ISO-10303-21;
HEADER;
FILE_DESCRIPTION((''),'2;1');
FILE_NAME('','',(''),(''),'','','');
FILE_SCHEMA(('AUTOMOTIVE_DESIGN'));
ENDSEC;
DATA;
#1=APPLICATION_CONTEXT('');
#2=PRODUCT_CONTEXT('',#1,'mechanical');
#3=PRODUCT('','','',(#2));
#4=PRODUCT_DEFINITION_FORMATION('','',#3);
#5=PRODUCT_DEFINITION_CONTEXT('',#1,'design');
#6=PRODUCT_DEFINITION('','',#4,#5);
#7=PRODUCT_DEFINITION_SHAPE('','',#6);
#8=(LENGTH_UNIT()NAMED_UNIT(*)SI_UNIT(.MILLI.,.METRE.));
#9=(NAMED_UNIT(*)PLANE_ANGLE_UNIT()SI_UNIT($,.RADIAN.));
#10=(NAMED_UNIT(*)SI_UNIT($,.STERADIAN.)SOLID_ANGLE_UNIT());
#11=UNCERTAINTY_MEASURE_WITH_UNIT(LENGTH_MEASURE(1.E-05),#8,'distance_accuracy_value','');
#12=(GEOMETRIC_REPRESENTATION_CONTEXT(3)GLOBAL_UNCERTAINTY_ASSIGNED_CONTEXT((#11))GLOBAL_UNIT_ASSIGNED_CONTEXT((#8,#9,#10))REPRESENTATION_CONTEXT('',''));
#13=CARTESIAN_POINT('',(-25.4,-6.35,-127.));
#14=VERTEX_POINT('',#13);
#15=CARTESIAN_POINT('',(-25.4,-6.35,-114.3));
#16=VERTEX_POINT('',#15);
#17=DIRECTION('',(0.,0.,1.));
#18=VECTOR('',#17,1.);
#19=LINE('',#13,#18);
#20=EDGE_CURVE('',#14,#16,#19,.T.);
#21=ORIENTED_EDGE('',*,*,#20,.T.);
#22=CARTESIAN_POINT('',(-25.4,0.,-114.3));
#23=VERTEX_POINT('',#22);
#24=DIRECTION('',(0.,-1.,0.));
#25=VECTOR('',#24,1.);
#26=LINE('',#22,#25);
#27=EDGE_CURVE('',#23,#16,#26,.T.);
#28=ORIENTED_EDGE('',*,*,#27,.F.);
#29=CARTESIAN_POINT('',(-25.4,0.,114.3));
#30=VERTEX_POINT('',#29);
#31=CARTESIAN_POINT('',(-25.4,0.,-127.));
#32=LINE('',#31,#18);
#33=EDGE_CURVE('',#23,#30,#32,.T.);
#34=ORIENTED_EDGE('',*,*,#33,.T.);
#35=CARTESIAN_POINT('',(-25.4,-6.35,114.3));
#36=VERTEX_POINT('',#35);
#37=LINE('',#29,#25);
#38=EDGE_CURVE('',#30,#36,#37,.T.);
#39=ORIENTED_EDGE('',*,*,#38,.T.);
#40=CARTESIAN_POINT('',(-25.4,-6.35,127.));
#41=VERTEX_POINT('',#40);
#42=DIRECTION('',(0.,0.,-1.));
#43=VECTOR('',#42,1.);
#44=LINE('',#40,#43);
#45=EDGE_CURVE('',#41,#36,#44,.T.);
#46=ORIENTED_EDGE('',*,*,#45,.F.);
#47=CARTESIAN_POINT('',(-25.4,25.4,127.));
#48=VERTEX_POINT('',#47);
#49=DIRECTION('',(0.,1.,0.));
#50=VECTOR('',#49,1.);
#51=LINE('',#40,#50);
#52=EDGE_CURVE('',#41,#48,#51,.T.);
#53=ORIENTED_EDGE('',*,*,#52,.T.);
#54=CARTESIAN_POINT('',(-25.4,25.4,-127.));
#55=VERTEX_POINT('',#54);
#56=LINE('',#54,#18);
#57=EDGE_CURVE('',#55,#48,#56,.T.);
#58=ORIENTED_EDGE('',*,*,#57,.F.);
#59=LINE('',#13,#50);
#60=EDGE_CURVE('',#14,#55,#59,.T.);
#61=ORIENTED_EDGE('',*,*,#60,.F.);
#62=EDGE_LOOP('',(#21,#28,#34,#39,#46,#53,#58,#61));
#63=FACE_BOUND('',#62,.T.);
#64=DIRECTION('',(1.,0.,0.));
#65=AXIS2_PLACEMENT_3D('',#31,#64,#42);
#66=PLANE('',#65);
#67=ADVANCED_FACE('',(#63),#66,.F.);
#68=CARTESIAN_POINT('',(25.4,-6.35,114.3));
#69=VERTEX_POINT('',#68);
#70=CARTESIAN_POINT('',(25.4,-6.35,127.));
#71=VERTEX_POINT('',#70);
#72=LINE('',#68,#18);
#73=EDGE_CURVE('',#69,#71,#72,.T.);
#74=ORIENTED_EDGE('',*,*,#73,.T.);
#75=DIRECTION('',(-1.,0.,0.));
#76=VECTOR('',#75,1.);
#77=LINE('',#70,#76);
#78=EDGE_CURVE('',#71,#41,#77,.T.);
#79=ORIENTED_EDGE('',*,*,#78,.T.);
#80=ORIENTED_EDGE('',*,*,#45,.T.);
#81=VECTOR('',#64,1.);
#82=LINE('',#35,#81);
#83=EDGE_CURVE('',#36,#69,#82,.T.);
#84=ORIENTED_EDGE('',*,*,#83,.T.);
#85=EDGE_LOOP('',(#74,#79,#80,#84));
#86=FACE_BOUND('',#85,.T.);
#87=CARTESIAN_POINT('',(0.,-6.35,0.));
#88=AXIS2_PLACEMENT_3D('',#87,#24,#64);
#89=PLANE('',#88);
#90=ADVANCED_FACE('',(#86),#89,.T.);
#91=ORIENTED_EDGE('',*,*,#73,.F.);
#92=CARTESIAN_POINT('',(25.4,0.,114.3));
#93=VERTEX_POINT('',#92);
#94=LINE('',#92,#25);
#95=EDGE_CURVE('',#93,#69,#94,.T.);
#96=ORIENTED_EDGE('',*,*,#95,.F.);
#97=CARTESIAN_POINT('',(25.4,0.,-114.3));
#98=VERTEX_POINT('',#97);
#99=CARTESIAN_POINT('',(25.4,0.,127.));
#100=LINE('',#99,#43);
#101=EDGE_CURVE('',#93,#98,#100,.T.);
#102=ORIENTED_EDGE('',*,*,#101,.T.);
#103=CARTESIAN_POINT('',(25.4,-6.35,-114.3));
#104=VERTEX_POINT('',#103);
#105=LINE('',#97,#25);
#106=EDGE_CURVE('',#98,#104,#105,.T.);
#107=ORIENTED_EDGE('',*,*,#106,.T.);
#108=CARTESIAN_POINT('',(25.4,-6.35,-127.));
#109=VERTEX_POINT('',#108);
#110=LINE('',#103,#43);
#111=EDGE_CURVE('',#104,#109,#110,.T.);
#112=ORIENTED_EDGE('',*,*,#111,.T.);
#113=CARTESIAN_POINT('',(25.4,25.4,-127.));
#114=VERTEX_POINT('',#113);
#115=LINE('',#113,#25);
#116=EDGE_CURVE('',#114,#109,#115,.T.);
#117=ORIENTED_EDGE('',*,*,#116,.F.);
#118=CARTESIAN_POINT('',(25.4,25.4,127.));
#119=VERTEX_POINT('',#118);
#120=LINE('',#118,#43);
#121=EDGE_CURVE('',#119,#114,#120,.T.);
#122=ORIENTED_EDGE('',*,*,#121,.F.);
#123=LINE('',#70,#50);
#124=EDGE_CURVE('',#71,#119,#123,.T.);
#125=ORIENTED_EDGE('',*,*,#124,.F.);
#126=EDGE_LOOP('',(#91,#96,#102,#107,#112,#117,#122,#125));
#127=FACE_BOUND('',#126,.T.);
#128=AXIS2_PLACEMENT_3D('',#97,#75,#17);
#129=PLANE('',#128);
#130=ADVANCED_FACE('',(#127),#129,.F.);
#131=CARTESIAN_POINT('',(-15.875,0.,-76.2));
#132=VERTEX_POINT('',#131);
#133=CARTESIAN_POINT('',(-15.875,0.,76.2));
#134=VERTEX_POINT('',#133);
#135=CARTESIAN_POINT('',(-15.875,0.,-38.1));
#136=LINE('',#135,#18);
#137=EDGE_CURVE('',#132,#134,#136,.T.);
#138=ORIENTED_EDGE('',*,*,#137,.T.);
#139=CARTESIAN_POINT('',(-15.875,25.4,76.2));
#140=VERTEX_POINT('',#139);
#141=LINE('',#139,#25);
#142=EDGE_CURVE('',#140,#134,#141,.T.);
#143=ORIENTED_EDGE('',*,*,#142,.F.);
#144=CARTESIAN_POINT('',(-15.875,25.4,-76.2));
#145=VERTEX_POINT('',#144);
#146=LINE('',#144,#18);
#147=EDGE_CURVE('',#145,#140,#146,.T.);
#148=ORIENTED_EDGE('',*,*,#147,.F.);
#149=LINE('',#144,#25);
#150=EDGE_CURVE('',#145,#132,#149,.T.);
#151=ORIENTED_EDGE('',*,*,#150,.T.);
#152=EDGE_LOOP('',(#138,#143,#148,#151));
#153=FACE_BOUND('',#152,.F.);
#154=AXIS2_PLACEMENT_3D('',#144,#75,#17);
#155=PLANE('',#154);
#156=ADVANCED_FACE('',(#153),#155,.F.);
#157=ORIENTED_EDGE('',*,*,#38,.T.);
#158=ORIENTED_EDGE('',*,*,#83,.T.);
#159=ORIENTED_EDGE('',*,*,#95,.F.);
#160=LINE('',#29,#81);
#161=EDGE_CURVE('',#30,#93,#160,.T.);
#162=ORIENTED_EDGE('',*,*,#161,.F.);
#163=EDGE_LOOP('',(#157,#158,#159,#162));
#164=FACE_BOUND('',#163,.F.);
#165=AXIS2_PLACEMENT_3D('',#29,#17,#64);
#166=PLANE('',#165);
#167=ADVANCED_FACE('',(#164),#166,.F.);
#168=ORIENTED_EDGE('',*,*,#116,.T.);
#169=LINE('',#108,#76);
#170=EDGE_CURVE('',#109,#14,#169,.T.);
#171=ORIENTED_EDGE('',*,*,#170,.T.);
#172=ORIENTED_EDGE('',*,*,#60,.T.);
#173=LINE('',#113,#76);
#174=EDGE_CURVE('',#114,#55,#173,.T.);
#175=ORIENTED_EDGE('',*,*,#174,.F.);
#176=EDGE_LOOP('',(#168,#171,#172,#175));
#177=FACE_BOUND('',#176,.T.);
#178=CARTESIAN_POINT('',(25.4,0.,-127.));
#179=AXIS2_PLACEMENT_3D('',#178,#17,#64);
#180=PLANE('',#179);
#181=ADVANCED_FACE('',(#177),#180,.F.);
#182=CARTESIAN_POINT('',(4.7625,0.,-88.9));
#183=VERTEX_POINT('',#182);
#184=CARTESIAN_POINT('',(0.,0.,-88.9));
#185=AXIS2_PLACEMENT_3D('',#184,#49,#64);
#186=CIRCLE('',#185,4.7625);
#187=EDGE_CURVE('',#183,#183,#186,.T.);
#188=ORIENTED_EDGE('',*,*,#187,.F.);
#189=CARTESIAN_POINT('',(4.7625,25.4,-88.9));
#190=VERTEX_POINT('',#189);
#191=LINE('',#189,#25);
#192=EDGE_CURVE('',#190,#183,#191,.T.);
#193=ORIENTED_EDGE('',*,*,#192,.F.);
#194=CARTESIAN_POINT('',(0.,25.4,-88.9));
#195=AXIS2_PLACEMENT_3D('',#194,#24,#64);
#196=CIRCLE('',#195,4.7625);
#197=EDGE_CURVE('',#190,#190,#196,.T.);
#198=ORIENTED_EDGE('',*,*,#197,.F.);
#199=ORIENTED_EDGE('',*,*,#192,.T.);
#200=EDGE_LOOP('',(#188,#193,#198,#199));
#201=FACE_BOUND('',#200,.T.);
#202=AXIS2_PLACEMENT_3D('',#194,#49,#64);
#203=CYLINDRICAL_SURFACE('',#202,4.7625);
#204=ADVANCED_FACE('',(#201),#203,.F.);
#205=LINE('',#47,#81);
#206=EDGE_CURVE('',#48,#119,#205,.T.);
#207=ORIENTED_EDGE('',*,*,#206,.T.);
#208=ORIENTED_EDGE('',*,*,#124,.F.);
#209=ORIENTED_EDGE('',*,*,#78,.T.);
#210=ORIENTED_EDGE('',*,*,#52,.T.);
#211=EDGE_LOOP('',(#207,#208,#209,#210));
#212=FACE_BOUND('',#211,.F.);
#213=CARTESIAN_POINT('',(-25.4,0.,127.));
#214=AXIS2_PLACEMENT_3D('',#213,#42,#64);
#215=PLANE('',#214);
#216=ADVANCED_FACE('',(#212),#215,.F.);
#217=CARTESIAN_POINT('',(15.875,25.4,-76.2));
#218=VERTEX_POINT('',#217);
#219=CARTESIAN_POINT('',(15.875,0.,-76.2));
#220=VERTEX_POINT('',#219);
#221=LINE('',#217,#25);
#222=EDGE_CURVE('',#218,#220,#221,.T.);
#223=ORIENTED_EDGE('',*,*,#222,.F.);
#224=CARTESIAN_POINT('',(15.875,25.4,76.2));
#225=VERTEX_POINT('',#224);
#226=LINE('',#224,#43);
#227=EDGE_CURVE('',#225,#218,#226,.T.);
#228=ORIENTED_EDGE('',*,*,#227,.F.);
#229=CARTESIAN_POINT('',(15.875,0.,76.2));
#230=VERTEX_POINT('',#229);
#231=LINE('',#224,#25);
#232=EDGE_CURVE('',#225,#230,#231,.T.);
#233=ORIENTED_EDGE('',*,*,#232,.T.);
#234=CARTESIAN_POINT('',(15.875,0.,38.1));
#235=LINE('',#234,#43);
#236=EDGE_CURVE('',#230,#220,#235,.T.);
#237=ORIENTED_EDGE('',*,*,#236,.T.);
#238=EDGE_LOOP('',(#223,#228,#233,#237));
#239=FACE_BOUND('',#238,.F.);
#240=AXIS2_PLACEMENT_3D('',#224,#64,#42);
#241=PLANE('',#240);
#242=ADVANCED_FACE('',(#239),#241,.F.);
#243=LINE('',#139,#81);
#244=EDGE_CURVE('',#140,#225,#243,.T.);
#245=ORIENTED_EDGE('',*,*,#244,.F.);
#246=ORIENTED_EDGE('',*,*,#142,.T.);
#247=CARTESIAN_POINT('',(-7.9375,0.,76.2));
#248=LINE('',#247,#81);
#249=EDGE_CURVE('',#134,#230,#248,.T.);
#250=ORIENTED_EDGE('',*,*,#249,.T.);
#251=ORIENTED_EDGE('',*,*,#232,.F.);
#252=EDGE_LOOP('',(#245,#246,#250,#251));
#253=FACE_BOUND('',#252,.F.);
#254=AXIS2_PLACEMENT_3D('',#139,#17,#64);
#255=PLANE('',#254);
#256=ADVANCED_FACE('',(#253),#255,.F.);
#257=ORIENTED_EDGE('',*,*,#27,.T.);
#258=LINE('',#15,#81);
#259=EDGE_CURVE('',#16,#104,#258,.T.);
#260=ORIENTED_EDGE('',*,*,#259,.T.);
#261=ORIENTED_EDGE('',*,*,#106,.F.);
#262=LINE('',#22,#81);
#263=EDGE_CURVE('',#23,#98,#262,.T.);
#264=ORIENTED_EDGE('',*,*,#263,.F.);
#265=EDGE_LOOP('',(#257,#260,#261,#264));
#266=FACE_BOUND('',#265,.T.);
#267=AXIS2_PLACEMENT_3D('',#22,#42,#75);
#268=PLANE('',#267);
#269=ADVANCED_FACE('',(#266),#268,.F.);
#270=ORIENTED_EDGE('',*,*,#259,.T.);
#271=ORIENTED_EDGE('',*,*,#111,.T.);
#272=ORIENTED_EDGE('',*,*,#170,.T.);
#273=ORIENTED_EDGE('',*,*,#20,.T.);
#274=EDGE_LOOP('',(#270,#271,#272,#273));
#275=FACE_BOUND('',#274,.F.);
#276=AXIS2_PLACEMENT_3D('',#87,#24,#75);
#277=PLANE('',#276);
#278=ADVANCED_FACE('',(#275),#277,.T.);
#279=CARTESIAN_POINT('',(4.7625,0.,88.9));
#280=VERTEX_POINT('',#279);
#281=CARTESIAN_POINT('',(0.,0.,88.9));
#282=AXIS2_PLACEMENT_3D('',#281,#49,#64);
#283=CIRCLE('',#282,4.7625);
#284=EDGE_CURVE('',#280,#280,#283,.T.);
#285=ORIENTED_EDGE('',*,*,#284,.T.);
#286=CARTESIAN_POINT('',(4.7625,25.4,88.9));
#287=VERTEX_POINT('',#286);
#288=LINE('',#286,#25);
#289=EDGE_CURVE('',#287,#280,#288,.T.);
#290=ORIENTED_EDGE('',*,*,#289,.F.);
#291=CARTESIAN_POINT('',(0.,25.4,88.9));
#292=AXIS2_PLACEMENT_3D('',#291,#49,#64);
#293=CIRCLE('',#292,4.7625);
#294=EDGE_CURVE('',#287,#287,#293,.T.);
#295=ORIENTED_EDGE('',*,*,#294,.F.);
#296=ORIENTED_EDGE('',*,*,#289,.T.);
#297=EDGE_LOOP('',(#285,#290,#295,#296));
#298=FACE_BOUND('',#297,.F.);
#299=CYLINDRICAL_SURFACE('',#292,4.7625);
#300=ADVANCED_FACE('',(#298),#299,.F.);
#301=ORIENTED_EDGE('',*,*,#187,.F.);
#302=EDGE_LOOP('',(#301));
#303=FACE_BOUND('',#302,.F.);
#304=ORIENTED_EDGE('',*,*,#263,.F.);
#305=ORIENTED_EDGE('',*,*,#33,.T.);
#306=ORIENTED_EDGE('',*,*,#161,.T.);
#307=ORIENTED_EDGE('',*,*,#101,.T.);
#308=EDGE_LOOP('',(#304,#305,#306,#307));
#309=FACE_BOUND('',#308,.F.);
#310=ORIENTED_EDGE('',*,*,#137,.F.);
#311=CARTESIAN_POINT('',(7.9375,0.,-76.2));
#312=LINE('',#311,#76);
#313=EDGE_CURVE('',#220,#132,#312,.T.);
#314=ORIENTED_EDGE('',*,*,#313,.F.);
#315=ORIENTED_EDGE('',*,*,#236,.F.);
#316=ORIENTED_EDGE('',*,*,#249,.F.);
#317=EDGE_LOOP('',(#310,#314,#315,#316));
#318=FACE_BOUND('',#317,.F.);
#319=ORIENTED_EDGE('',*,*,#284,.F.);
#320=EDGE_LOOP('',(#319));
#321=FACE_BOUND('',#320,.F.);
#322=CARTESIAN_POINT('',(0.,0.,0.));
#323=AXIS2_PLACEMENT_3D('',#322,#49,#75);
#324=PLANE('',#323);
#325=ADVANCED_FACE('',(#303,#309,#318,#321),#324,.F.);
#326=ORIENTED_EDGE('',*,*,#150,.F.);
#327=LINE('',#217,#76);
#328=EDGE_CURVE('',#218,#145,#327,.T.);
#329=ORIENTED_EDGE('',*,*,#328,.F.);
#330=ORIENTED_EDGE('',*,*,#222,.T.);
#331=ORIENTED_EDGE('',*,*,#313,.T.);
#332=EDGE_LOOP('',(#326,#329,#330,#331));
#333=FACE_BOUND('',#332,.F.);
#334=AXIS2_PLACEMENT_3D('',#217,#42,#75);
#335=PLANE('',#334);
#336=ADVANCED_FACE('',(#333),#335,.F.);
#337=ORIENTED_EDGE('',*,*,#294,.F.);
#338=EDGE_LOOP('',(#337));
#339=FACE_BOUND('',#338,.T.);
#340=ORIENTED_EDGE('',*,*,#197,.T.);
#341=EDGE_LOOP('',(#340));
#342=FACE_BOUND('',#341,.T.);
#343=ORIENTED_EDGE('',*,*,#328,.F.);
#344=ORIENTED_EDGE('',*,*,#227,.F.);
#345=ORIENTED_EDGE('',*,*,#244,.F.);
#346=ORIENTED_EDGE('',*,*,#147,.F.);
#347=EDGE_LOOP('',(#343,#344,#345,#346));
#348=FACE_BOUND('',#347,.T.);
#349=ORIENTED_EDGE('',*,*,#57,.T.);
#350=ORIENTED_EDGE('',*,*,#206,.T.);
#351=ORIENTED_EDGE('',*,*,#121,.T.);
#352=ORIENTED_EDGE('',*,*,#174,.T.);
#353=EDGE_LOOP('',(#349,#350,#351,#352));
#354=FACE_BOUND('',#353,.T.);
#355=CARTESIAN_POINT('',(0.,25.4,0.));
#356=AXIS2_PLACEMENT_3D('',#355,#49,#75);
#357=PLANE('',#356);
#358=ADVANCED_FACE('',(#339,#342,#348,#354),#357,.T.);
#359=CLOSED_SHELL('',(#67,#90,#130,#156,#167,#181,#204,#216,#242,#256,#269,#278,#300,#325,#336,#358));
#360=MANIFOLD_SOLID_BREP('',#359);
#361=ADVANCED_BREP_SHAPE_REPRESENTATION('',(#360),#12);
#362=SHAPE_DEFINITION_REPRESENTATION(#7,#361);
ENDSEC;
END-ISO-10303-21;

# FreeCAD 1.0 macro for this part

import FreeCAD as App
import Part
import Sketcher

V = App.Vector
Q = App.Units.Quantity


def add_polygon(sketch, points):
    """Adds a closed chain of lines whose ends are joined by coincident constraints."""
    first, n = sketch.GeometryCount, len(points)
    for a, b in zip(points, points[1:] + points[:1]):
        sketch.addGeometry(Part.LineSegment(App.Vector(*a, 0), App.Vector(*b, 0)), False)
    for i in range(n):
        sketch.addConstraint(Sketcher.Constraint("Coincident", first + i, 2, first + (i + 1) % n, 1))

doc = App.newDocument("Part")
body = doc.addObject("PartDesign::Body", "Body")

# Sketch on XZ plane
sketch1 = body.newObject("Sketcher::SketchObject", "Sketch")
sketch1.AttachmentSupport = (doc.getObject("XZ_Plane"), [""])
sketch1.MapMode = "FlatFace"
add_polygon(sketch1, [(-25.4, -127), (-25.4, 127), (25.4, 127), (25.4, -127)])  # lines 0-3
sketch1.addConstraint([
    Sketcher.Constraint("Vertical", 0),
    Sketcher.Constraint("Horizontal", 1),
    Sketcher.Constraint("Vertical", 2),
    Sketcher.Constraint("Horizontal", 3),
    Sketcher.Constraint("Symmetric", 0, 2, 2, 2, -1, 1),
    Sketcher.Constraint("DistanceX", 1, 1, 1, 2, Q("2 in")),
    Sketcher.Constraint("DistanceY", 0, 1, 0, 2, Q("10 in")),
])
pad1 = body.newObject("PartDesign::Pad", "Pad")
pad1.Profile = sketch1
pad1.Length = Q("1 in")
pad1.Reversed = True

# Sketch on XZ plane
sketch2 = body.newObject("Sketcher::SketchObject", "Sketch001")
sketch2.AttachmentSupport = (doc.getObject("XZ_Plane"), [""])
sketch2.MapMode = "FlatFace"
add_polygon(sketch2, [(25.4, 127), (-25.4, 127), (-25.4, 114.3), (25.4, 114.3)])  # lines 0-3
sketch2.addConstraint([
    Sketcher.Constraint("Horizontal", 0),
    Sketcher.Constraint("Vertical", 1),
    Sketcher.Constraint("Horizontal", 2),
    Sketcher.Constraint("Vertical", 3),
    Sketcher.Constraint("DistanceY", 1, 2, 1, 1, Q("0.5 in")),
    Sketcher.Constraint("DistanceX", 0, 2, -1, 1, Q("1 in")),
    Sketcher.Constraint("DistanceX", -1, 1, 2, 2, Q("1 in")),
    Sketcher.Constraint("DistanceY", -1, 1, 0, 2, Q("5 in")),
])
pad2 = body.newObject("PartDesign::Pad", "Pad001")
pad2.Profile = sketch2
pad2.Length = Q("0.25 in")
doc.recompute()

mirrored = body.newObject("PartDesign::Mirrored", "Mirrored")
mirrored.Originals = [pad2]
mirrored.MirrorPlane = (doc.getObject("XY_Plane"), [""])
body.Tip = mirrored

# Sketch on XZ plane
sketch3 = body.newObject("Sketcher::SketchObject", "Sketch002")
sketch3.AttachmentSupport = (doc.getObject("XZ_Plane"), [""])
sketch3.MapMode = "FlatFace"
sketch3.AttachmentOffset = App.Placement(V(0, 0, -1 * 25.4), App.Rotation())
sketch3.addGeometry(Part.Circle(V(0, 88.9, 0), V(0, 0, 1), 4.7625), False)
sketch3.addConstraint([
    Sketcher.Constraint("PointOnObject", 0, 3, -2),
    Sketcher.Constraint("Diameter", 0, Q("0.375 in")),
    Sketcher.Constraint("DistanceY", -1, 1, 0, 3, Q("3.5 in")),
])
pocket1 = body.newObject("PartDesign::Pocket", "Pocket")
pocket1.Profile = sketch3
pocket1.Type = "ThroughAll"
pocket1.Reversed = True
doc.recompute()

mirrored2 = body.newObject("PartDesign::Mirrored", "Mirrored001")
mirrored2.Originals = [pocket1]
mirrored2.MirrorPlane = (doc.getObject("XY_Plane"), [""])
body.Tip = mirrored2

# Sketch on XZ plane
sketch4 = body.newObject("Sketcher::SketchObject", "Sketch003")
sketch4.AttachmentSupport = (doc.getObject("XZ_Plane"), [""])
sketch4.MapMode = "FlatFace"
sketch4.AttachmentOffset = App.Placement(V(0, 0, -1 * 25.4), App.Rotation())
add_polygon(sketch4, [(-15.875, -76.2), (-15.875, 76.2), (15.875, 76.2), (15.875, -76.2)])  # lines 0-3
sketch4.addConstraint([
    Sketcher.Constraint("Vertical", 0),
    Sketcher.Constraint("Horizontal", 1),
    Sketcher.Constraint("Vertical", 2),
    Sketcher.Constraint("Horizontal", 3),
    Sketcher.Constraint("Symmetric", 0, 2, 2, 2, -1, 1),
    Sketcher.Constraint("DistanceY", 0, 1, 0, 2, Q("6 in")),
    Sketcher.Constraint("DistanceX", 1, 1, 1, 2, Q("1.25 in")),
])
pocket2 = body.newObject("PartDesign::Pocket", "Pocket001")
pocket2.Profile = sketch4
pocket2.Type = "ThroughAll"
pocket2.Reversed = True

doc.recompute()
